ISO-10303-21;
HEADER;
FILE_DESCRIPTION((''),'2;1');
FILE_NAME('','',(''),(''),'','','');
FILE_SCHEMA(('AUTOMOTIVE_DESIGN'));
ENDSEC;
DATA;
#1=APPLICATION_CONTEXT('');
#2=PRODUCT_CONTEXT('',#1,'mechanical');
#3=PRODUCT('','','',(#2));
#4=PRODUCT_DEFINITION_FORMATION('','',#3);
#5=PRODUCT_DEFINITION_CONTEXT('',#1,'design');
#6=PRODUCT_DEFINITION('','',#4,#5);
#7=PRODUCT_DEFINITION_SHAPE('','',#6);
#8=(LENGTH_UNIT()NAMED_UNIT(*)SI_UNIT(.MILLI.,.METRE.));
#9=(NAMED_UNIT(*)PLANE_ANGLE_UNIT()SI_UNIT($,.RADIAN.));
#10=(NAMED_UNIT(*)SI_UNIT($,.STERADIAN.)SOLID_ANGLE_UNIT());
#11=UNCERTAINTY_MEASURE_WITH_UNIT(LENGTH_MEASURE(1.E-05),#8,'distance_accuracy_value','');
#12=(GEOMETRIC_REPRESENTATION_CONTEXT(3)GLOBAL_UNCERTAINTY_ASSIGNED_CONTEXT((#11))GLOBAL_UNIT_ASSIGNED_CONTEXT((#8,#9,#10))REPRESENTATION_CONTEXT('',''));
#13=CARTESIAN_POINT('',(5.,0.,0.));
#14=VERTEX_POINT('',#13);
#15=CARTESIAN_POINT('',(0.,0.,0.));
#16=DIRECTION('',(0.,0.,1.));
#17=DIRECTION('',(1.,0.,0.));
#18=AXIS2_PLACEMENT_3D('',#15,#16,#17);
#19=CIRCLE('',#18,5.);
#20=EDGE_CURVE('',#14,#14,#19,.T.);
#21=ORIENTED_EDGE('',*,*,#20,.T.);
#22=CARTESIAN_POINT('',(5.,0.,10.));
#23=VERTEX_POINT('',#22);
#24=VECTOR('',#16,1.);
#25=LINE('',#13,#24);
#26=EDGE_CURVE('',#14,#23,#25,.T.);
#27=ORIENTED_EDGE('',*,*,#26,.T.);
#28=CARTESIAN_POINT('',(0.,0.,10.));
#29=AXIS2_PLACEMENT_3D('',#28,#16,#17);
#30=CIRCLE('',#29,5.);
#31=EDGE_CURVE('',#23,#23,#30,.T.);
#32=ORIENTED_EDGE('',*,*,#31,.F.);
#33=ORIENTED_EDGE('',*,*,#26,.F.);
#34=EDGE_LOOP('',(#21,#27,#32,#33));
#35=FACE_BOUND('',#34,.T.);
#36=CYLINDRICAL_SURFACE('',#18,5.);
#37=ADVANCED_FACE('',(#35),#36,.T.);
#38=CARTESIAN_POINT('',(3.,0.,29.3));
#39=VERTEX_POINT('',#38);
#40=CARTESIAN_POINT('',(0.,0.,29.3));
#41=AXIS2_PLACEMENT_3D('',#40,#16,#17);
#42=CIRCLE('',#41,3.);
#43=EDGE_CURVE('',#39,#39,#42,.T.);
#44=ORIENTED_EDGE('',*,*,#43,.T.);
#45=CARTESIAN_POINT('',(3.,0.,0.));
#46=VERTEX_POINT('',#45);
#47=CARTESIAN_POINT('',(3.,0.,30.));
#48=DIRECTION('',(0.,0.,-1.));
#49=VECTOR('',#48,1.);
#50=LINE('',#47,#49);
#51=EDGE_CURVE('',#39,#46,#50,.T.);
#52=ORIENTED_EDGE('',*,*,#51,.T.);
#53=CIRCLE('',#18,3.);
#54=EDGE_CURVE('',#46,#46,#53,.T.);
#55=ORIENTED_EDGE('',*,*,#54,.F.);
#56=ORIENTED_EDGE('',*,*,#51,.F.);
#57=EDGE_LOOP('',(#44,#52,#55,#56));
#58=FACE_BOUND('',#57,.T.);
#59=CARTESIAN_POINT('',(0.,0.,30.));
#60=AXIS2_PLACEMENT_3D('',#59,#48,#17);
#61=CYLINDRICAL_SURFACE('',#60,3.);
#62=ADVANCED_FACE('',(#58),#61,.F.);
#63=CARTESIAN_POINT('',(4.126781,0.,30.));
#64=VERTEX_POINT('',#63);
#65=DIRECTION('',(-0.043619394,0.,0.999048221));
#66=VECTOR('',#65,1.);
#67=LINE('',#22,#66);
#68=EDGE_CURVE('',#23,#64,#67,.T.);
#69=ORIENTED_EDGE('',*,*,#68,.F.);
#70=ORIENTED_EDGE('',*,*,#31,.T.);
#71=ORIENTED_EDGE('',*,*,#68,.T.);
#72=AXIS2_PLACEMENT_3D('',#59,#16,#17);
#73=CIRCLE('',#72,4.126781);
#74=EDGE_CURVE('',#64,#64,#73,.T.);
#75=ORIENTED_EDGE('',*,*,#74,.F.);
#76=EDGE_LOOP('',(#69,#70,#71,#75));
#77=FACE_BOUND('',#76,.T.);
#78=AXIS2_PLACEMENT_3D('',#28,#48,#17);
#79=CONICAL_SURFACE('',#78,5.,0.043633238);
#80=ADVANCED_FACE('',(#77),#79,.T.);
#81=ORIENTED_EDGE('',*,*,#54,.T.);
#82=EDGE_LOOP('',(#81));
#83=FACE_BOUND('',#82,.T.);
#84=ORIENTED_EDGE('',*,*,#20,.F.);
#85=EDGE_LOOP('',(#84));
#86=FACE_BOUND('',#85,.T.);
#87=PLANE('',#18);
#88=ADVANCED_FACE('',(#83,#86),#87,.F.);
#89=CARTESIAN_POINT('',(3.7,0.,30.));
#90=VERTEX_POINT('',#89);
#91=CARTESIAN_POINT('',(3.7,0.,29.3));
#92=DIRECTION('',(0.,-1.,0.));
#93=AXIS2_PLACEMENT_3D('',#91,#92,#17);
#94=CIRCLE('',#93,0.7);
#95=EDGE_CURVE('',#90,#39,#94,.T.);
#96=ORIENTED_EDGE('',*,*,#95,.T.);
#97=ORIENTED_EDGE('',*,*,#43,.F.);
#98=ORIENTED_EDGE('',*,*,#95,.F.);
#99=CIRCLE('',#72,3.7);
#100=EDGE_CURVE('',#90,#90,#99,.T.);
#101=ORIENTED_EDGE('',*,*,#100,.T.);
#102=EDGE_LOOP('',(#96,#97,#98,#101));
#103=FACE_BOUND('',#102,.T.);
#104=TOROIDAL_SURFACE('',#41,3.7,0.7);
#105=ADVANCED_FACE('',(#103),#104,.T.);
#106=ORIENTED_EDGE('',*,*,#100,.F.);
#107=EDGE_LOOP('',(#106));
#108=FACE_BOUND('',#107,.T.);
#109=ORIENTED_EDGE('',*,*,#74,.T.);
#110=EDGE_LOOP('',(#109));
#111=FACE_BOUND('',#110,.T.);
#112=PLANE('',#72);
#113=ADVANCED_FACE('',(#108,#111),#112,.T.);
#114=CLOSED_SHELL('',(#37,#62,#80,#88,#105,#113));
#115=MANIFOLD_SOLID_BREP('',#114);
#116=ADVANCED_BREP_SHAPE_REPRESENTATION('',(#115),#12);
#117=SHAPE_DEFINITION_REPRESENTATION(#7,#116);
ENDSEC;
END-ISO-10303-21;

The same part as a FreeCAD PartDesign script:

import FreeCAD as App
import Part
import Sketcher
Q = App.Units.Quantity


def edges_at(feature, points):
    """Names of the edges that pass closest to the given points."""
    edges = feature.Shape.Edges
    near = lambda p: min(range(len(edges)), key=lambda i: edges[i].distToShape(Part.Vertex(*p))[0])
    return sorted({f"Edge{near(p) + 1}" for p in points})


def add_polygon(sketch, points):
    """Adds a closed chain of lines whose ends are joined by coincident constraints."""
    first, n = sketch.GeometryCount, len(points)
    for a, b in zip(points, points[1:] + points[:1]):
        sketch.addGeometry(Part.LineSegment(App.Vector(*a, 0), App.Vector(*b, 0)), False)
    for i in range(n):
        sketch.addConstraint(Sketcher.Constraint("Coincident", first + i, 2, first + (i + 1) % n, 1))

doc = App.newDocument("Part")
params = doc.addObject("Spreadsheet::Sheet", "Params")
for row, (alias, value) in enumerate([
    ("sketch1_width", "2 mm"),
    ("sketch1_height", "10 mm"),
    ("sketch1_height2", "30 mm"),
    ("revolution_angle", "360 deg"),
    ("fillet_radius", "0.7 mm"),
], start=1):
    params.set(f"A{row}", alias)
    params.set(f"B{row}", "=" + value)
    params.setAlias(f"B{row}", alias)

body = doc.addObject("PartDesign::Body", "Body")

# Sketch on XZ plane
sketch1 = body.newObject("Sketcher::SketchObject", "Sketch")
sketch1.AttachmentSupport = (doc.getObject("XZ_Plane"), [""])
sketch1.MapMode = "FlatFace"
add_polygon(sketch1, [(3, 0), (5, 0), (5, 10), (4.126781, 30), (3, 30)])  # lines 0-4
sketch1.addConstraint([
    Sketcher.Constraint("Horizontal", 0),
    Sketcher.Constraint("Vertical", 1),
    Sketcher.Constraint("Horizontal", 3),
    Sketcher.Constraint("Vertical", 4),
    Sketcher.Constraint("PointOnObject", 0, 2, -1),
    Sketcher.Constraint("DistanceX", 0, 1, 0, 2, Q("2 mm")),
    Sketcher.Constraint("DistanceY", 1, 1, 1, 2, Q("10 mm")),
    Sketcher.Constraint("DistanceY", 4, 2, 4, 1, Q("30 mm")),
    Sketcher.Constraint("DistanceX", -1, 1, 0, 2, Q("5 mm")),
    Sketcher.Constraint("Angle", 2, Q("92.5 deg")),
])
sketch1.setExpression("Constraints[10]", "Params.sketch1_width")
sketch1.setExpression("Constraints[11]", "Params.sketch1_height")
sketch1.setExpression("Constraints[12]", "Params.sketch1_height2")
revolution = body.newObject("PartDesign::Revolution", "Revolution")
revolution.Profile = sketch1
revolution.ReferenceAxis = (sketch1, ["V_Axis"])
revolution.setExpression("Angle", "Params.revolution_angle")
doc.recompute()

fillet = body.newObject("PartDesign::Fillet", "Fillet")
fillet.Base = (revolution, edges_at(revolution, [(-3, 0, 30)]))
fillet.setExpression("Radius", "Params.fillet_radius")

doc.recompute()
